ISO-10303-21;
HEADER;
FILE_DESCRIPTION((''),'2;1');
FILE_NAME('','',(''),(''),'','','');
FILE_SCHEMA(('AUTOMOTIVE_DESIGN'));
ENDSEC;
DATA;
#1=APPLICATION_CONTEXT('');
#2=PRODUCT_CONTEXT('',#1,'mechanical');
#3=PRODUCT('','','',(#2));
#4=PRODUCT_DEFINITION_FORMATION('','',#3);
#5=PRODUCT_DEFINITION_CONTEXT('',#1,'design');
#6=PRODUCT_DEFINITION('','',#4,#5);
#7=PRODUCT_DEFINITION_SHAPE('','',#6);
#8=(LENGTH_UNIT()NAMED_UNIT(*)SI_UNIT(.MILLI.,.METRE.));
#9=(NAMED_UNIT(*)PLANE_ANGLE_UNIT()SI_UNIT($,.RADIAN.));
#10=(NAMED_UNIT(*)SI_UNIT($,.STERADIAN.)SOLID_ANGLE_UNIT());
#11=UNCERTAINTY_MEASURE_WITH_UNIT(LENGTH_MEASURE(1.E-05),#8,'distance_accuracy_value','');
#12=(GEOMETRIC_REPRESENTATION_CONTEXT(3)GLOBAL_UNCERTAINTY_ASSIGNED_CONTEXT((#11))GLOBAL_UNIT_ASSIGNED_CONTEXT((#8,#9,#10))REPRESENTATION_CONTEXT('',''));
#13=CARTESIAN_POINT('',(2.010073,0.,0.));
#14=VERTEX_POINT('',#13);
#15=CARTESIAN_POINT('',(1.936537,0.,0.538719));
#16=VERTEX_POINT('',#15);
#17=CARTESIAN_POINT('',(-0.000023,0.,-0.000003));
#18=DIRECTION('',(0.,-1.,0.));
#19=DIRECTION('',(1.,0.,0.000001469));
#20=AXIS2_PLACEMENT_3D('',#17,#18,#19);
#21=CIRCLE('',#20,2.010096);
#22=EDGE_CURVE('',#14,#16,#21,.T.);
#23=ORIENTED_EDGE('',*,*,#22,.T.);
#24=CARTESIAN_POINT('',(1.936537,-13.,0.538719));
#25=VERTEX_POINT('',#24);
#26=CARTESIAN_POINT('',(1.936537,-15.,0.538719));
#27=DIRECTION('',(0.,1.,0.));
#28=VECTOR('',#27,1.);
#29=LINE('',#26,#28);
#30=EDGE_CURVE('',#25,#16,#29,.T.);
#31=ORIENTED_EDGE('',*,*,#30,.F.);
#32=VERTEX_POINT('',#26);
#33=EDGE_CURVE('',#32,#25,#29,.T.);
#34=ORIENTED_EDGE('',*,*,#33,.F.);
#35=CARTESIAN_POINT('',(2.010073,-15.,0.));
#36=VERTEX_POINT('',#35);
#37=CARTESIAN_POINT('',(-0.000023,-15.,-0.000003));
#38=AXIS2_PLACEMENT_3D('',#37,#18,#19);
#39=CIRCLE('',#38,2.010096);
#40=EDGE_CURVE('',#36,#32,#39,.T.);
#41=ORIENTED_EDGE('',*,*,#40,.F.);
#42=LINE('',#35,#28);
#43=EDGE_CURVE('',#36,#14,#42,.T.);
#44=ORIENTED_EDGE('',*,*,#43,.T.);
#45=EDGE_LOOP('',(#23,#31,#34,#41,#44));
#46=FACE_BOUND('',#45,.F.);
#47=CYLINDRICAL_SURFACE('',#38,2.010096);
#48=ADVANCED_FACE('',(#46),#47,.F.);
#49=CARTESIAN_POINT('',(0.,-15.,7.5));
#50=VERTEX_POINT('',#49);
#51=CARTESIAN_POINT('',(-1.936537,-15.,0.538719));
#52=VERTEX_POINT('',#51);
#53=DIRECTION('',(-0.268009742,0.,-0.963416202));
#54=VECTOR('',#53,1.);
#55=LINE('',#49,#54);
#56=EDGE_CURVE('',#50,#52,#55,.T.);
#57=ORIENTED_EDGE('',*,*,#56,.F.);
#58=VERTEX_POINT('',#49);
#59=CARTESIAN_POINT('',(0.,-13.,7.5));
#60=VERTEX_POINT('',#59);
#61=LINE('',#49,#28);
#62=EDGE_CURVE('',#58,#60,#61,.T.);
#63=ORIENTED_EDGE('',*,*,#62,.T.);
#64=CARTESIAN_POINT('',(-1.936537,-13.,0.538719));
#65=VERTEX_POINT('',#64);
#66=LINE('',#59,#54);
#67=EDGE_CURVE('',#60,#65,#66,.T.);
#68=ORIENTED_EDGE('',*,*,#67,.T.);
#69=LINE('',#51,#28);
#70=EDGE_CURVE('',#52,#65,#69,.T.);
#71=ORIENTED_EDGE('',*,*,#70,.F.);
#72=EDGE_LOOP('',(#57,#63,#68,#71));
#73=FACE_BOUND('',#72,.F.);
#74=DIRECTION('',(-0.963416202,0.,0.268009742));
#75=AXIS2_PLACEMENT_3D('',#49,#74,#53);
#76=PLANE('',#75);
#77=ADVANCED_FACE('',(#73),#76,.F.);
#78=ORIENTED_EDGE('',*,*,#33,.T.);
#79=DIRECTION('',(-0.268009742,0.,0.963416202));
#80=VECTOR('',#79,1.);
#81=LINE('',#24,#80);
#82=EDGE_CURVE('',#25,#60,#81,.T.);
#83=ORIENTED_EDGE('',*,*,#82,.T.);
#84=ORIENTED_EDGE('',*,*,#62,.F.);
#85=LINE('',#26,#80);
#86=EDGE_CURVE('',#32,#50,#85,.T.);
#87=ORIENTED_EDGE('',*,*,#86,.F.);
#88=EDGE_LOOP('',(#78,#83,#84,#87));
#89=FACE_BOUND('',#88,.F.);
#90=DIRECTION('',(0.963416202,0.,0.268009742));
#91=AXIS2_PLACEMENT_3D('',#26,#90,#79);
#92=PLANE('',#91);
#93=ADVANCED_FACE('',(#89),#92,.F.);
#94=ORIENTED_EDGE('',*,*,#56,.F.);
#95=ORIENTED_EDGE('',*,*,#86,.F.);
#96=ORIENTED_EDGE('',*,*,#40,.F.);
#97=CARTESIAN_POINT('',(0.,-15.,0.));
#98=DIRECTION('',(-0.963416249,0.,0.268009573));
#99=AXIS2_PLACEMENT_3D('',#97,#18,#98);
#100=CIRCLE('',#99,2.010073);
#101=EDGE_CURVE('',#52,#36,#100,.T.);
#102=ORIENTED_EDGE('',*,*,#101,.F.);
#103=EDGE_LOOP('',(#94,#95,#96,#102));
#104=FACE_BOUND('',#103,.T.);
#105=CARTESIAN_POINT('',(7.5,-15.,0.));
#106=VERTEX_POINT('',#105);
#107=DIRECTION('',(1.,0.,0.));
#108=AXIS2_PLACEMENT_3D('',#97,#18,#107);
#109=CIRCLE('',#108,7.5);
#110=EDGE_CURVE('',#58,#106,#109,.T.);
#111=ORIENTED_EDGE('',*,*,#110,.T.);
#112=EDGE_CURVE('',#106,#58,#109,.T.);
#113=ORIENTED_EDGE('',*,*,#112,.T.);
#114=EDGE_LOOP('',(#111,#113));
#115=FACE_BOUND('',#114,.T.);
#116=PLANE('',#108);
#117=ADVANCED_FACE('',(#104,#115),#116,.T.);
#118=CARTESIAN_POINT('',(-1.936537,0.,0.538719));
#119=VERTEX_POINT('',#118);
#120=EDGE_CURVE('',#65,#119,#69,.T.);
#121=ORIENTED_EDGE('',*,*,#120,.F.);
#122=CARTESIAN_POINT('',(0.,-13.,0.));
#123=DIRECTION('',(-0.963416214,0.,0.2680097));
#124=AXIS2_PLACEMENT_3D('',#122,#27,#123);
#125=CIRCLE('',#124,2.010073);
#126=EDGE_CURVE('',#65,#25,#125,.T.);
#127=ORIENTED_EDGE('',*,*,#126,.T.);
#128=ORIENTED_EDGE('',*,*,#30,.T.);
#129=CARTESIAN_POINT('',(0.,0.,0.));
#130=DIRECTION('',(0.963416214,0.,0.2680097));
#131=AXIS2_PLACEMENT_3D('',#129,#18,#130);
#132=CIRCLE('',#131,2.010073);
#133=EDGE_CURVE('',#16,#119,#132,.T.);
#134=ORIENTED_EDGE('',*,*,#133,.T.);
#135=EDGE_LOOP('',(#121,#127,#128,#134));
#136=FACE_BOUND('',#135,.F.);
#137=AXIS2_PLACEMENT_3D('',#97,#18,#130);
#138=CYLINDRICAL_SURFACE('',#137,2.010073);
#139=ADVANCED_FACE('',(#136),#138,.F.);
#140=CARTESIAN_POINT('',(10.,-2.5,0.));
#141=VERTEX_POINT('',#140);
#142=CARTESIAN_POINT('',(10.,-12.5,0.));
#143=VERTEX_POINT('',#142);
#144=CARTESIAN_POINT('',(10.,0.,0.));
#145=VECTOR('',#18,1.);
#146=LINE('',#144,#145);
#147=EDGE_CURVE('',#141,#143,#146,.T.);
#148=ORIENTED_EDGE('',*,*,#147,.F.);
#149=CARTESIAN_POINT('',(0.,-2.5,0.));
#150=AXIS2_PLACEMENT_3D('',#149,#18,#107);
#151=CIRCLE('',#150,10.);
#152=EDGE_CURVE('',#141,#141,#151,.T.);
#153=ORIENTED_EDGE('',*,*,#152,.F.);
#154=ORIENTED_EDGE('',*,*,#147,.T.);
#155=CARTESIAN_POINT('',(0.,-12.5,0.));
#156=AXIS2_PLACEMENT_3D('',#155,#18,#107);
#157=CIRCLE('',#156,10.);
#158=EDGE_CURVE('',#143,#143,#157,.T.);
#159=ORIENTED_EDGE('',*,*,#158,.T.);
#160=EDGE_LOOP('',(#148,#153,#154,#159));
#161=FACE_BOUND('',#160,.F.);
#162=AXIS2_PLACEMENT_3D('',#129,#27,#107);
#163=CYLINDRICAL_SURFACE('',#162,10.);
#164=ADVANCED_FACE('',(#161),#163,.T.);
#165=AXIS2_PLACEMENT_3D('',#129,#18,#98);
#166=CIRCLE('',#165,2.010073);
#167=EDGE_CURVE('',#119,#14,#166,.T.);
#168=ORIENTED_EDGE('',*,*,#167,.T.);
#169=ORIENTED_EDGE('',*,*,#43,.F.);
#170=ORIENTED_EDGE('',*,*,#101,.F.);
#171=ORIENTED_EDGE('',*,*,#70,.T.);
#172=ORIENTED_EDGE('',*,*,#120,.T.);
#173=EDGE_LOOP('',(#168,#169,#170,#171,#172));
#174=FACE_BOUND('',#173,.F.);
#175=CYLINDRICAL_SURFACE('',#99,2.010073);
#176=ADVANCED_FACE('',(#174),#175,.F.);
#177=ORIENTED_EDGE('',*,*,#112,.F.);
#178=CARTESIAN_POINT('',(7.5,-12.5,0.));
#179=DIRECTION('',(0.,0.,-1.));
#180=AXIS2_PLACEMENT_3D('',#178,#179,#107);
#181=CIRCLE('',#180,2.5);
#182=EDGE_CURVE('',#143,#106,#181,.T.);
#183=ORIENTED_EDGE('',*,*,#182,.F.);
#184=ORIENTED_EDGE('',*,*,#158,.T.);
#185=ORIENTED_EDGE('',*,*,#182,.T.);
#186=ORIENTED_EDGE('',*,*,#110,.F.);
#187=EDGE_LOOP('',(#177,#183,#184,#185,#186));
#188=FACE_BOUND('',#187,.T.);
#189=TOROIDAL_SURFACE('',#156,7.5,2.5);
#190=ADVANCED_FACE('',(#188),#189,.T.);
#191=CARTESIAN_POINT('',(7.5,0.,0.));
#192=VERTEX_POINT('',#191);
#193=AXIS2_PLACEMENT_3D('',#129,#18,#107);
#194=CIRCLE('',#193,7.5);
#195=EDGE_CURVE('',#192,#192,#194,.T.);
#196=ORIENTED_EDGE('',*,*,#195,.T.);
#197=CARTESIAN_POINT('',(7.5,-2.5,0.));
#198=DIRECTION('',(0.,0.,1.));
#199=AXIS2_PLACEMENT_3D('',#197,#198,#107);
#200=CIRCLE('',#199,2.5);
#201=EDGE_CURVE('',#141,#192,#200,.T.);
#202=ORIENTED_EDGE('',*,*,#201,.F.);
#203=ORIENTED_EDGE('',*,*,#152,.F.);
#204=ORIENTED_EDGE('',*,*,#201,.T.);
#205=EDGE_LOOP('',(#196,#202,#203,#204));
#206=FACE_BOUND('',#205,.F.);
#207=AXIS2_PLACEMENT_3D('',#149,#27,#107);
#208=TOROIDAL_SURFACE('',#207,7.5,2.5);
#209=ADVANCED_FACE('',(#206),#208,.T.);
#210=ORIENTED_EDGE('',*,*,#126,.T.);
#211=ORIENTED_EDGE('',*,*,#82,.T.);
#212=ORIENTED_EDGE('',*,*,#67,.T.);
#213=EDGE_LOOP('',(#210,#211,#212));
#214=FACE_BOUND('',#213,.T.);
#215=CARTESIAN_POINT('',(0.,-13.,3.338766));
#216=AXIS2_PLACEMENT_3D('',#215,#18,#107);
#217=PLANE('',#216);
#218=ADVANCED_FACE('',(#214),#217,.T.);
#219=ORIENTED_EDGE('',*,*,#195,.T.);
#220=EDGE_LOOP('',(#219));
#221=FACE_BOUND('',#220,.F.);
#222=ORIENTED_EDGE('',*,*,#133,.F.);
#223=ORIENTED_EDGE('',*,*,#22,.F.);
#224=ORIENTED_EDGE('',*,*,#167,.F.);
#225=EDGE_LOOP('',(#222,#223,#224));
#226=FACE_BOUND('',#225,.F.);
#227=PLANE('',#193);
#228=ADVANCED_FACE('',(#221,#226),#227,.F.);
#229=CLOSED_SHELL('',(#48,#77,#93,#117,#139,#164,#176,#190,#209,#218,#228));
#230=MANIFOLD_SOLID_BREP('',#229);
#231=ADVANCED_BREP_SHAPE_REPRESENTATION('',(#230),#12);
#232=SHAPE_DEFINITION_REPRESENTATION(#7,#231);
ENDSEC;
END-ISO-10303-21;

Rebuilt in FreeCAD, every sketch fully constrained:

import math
import FreeCAD as App
import Part
import Sketcher


def edges_at(feature, points):
    """Names of the edges that pass closest to the given points."""
    edges = feature.Shape.Edges
    near = lambda p: min(range(len(edges)), key=lambda i: edges[i].distToShape(Part.Vertex(*p))[0])
    return sorted({f"Edge{near(p) + 1}" for p in points})

doc = App.newDocument("Part")
params = doc.addObject("Spreadsheet::Sheet", "Params")
for row, (alias, value) in enumerate([
    ("sketch1_diameter", "20 mm"),
    ("pad1_length", "15 mm"),
    ("fillet_radius", "2.5 mm"),
    ("pocket1_length", "50 mm"),
    ("pocket2_length", "2 mm"),
], start=1):
    params.set(f"A{row}", alias)
    params.set(f"B{row}", "=" + value)
    params.setAlias(f"B{row}", alias)

body = doc.addObject("PartDesign::Body", "Body")

# Sketch on XZ plane
sketch1 = body.newObject("Sketcher::SketchObject", "Sketch")
sketch1.AttachmentSupport = (doc.getObject("XZ_Plane"), [""])
sketch1.MapMode = "FlatFace"
sketch1.addGeometry(Part.Circle(App.Vector(0, 0, 0), App.Vector(0, 0, 1), 10), False)
sketch1.addConstraint([
    Sketcher.Constraint("Coincident", 0, 3, -1, 1),
    Sketcher.Constraint("Diameter", 0, 20.0),
])
sketch1.setExpression("Constraints[1]", "Params.sketch1_diameter")
pad1 = body.newObject("PartDesign::Pad", "Pad")
pad1.Profile = sketch1
pad1.setExpression("Length", "Params.pad1_length")
doc.recompute()

fillet = body.newObject("PartDesign::Fillet", "Fillet")
fillet.Base = (pad1, edges_at(pad1, [(-10, -15, 0), (-10, 0, 0)]))
fillet.setExpression("Radius", "Params.fillet_radius")

# Sketch on XZ plane
sketch2 = body.newObject("Sketcher::SketchObject", "Sketch001")
sketch2.AttachmentSupport = (doc.getObject("XZ_Plane"), [""])
sketch2.MapMode = "FlatFace"
sketch2.AttachmentOffset = App.Placement(App.Vector(0, 0, 15), App.Rotation())
sketch2.addGeometry([
    Part.ArcOfCircle(Part.Circle(App.Vector(0, 0, 0), App.Vector(0, 0, 1), 2.010073), math.radians(164.454141), math.radians(359.999994)),
    Part.ArcOfCircle(Part.Circle(App.Vector(-0.000023, -0.000003, 0), App.Vector(0, 0, 1), 2.010096), math.radians(0.000084), math.radians(15.545767)),
    Part.ArcOfCircle(Part.Circle(App.Vector(0, 0, 0), App.Vector(0, 0, 1), 2.010073), math.radians(15.545867), math.radians(164.454133)),
], False)
sketch2.addConstraint([
    Sketcher.Constraint("Coincident", 0, 2, 1, 1),
    Sketcher.Constraint("Coincident", 1, 2, 2, 1),
    Sketcher.Constraint("Coincident", 2, 2, 0, 1),
    Sketcher.Constraint("Coincident", 0, 3, -1, 1),
    Sketcher.Constraint("Coincident", 2, 3, -1, 1),
    Sketcher.Constraint("PointOnObject", 0, 2, -1),
    Sketcher.Constraint("Radius", 0, 2.010073),
    Sketcher.Constraint("Radius", 1, 2.010096),
    Sketcher.Constraint("DistanceY", -1, 1, 1, 2, 0.538719),
    Sketcher.Constraint("DistanceY", -1, 1, 2, 2, 0.538719),
])
pocket1 = body.newObject("PartDesign::Pocket", "Pocket")
pocket1.Profile = sketch2
pocket1.setExpression("Length", "Params.pocket1_length")

# Sketch on XZ plane
sketch3 = body.newObject("Sketcher::SketchObject", "Sketch002")
sketch3.AttachmentSupport = (doc.getObject("XZ_Plane"), [""])
sketch3.MapMode = "FlatFace"
sketch3.AttachmentOffset = App.Placement(App.Vector(0, 0, 15), App.Rotation())
sketch3.addGeometry([
    Part.ArcOfCircle(Part.Circle(App.Vector(0, 0, 0), App.Vector(0, 0, 1), 2.010073), math.radians(15.545867), math.radians(164.454133)),
    Part.LineSegment(App.Vector(1.936537, 0.538719, 0), App.Vector(0, 7.5, 0)),
    Part.LineSegment(App.Vector(0, 7.5, 0), App.Vector(-1.936537, 0.538719, 0)),
], False)
sketch3.addConstraint([
    Sketcher.Constraint("Tangent", 0, 1, 1, 1),
    Sketcher.Constraint("Coincident", 1, 2, 2, 1),
    Sketcher.Constraint("Tangent", 2, 2, 0, 2),
    Sketcher.Constraint("Coincident", 0, 3, -1, 1),
    Sketcher.Constraint("PointOnObject", 1, 2, -2),
    Sketcher.Constraint("DistanceY", -1, 1, 1, 2, 7.5),
    Sketcher.Constraint("Radius", 0, 2.010073),
])
pocket2 = body.newObject("PartDesign::Pocket", "Pocket001")
pocket2.Profile = sketch3
pocket2.setExpression("Length", "Params.pocket2_length")

doc.recompute()
